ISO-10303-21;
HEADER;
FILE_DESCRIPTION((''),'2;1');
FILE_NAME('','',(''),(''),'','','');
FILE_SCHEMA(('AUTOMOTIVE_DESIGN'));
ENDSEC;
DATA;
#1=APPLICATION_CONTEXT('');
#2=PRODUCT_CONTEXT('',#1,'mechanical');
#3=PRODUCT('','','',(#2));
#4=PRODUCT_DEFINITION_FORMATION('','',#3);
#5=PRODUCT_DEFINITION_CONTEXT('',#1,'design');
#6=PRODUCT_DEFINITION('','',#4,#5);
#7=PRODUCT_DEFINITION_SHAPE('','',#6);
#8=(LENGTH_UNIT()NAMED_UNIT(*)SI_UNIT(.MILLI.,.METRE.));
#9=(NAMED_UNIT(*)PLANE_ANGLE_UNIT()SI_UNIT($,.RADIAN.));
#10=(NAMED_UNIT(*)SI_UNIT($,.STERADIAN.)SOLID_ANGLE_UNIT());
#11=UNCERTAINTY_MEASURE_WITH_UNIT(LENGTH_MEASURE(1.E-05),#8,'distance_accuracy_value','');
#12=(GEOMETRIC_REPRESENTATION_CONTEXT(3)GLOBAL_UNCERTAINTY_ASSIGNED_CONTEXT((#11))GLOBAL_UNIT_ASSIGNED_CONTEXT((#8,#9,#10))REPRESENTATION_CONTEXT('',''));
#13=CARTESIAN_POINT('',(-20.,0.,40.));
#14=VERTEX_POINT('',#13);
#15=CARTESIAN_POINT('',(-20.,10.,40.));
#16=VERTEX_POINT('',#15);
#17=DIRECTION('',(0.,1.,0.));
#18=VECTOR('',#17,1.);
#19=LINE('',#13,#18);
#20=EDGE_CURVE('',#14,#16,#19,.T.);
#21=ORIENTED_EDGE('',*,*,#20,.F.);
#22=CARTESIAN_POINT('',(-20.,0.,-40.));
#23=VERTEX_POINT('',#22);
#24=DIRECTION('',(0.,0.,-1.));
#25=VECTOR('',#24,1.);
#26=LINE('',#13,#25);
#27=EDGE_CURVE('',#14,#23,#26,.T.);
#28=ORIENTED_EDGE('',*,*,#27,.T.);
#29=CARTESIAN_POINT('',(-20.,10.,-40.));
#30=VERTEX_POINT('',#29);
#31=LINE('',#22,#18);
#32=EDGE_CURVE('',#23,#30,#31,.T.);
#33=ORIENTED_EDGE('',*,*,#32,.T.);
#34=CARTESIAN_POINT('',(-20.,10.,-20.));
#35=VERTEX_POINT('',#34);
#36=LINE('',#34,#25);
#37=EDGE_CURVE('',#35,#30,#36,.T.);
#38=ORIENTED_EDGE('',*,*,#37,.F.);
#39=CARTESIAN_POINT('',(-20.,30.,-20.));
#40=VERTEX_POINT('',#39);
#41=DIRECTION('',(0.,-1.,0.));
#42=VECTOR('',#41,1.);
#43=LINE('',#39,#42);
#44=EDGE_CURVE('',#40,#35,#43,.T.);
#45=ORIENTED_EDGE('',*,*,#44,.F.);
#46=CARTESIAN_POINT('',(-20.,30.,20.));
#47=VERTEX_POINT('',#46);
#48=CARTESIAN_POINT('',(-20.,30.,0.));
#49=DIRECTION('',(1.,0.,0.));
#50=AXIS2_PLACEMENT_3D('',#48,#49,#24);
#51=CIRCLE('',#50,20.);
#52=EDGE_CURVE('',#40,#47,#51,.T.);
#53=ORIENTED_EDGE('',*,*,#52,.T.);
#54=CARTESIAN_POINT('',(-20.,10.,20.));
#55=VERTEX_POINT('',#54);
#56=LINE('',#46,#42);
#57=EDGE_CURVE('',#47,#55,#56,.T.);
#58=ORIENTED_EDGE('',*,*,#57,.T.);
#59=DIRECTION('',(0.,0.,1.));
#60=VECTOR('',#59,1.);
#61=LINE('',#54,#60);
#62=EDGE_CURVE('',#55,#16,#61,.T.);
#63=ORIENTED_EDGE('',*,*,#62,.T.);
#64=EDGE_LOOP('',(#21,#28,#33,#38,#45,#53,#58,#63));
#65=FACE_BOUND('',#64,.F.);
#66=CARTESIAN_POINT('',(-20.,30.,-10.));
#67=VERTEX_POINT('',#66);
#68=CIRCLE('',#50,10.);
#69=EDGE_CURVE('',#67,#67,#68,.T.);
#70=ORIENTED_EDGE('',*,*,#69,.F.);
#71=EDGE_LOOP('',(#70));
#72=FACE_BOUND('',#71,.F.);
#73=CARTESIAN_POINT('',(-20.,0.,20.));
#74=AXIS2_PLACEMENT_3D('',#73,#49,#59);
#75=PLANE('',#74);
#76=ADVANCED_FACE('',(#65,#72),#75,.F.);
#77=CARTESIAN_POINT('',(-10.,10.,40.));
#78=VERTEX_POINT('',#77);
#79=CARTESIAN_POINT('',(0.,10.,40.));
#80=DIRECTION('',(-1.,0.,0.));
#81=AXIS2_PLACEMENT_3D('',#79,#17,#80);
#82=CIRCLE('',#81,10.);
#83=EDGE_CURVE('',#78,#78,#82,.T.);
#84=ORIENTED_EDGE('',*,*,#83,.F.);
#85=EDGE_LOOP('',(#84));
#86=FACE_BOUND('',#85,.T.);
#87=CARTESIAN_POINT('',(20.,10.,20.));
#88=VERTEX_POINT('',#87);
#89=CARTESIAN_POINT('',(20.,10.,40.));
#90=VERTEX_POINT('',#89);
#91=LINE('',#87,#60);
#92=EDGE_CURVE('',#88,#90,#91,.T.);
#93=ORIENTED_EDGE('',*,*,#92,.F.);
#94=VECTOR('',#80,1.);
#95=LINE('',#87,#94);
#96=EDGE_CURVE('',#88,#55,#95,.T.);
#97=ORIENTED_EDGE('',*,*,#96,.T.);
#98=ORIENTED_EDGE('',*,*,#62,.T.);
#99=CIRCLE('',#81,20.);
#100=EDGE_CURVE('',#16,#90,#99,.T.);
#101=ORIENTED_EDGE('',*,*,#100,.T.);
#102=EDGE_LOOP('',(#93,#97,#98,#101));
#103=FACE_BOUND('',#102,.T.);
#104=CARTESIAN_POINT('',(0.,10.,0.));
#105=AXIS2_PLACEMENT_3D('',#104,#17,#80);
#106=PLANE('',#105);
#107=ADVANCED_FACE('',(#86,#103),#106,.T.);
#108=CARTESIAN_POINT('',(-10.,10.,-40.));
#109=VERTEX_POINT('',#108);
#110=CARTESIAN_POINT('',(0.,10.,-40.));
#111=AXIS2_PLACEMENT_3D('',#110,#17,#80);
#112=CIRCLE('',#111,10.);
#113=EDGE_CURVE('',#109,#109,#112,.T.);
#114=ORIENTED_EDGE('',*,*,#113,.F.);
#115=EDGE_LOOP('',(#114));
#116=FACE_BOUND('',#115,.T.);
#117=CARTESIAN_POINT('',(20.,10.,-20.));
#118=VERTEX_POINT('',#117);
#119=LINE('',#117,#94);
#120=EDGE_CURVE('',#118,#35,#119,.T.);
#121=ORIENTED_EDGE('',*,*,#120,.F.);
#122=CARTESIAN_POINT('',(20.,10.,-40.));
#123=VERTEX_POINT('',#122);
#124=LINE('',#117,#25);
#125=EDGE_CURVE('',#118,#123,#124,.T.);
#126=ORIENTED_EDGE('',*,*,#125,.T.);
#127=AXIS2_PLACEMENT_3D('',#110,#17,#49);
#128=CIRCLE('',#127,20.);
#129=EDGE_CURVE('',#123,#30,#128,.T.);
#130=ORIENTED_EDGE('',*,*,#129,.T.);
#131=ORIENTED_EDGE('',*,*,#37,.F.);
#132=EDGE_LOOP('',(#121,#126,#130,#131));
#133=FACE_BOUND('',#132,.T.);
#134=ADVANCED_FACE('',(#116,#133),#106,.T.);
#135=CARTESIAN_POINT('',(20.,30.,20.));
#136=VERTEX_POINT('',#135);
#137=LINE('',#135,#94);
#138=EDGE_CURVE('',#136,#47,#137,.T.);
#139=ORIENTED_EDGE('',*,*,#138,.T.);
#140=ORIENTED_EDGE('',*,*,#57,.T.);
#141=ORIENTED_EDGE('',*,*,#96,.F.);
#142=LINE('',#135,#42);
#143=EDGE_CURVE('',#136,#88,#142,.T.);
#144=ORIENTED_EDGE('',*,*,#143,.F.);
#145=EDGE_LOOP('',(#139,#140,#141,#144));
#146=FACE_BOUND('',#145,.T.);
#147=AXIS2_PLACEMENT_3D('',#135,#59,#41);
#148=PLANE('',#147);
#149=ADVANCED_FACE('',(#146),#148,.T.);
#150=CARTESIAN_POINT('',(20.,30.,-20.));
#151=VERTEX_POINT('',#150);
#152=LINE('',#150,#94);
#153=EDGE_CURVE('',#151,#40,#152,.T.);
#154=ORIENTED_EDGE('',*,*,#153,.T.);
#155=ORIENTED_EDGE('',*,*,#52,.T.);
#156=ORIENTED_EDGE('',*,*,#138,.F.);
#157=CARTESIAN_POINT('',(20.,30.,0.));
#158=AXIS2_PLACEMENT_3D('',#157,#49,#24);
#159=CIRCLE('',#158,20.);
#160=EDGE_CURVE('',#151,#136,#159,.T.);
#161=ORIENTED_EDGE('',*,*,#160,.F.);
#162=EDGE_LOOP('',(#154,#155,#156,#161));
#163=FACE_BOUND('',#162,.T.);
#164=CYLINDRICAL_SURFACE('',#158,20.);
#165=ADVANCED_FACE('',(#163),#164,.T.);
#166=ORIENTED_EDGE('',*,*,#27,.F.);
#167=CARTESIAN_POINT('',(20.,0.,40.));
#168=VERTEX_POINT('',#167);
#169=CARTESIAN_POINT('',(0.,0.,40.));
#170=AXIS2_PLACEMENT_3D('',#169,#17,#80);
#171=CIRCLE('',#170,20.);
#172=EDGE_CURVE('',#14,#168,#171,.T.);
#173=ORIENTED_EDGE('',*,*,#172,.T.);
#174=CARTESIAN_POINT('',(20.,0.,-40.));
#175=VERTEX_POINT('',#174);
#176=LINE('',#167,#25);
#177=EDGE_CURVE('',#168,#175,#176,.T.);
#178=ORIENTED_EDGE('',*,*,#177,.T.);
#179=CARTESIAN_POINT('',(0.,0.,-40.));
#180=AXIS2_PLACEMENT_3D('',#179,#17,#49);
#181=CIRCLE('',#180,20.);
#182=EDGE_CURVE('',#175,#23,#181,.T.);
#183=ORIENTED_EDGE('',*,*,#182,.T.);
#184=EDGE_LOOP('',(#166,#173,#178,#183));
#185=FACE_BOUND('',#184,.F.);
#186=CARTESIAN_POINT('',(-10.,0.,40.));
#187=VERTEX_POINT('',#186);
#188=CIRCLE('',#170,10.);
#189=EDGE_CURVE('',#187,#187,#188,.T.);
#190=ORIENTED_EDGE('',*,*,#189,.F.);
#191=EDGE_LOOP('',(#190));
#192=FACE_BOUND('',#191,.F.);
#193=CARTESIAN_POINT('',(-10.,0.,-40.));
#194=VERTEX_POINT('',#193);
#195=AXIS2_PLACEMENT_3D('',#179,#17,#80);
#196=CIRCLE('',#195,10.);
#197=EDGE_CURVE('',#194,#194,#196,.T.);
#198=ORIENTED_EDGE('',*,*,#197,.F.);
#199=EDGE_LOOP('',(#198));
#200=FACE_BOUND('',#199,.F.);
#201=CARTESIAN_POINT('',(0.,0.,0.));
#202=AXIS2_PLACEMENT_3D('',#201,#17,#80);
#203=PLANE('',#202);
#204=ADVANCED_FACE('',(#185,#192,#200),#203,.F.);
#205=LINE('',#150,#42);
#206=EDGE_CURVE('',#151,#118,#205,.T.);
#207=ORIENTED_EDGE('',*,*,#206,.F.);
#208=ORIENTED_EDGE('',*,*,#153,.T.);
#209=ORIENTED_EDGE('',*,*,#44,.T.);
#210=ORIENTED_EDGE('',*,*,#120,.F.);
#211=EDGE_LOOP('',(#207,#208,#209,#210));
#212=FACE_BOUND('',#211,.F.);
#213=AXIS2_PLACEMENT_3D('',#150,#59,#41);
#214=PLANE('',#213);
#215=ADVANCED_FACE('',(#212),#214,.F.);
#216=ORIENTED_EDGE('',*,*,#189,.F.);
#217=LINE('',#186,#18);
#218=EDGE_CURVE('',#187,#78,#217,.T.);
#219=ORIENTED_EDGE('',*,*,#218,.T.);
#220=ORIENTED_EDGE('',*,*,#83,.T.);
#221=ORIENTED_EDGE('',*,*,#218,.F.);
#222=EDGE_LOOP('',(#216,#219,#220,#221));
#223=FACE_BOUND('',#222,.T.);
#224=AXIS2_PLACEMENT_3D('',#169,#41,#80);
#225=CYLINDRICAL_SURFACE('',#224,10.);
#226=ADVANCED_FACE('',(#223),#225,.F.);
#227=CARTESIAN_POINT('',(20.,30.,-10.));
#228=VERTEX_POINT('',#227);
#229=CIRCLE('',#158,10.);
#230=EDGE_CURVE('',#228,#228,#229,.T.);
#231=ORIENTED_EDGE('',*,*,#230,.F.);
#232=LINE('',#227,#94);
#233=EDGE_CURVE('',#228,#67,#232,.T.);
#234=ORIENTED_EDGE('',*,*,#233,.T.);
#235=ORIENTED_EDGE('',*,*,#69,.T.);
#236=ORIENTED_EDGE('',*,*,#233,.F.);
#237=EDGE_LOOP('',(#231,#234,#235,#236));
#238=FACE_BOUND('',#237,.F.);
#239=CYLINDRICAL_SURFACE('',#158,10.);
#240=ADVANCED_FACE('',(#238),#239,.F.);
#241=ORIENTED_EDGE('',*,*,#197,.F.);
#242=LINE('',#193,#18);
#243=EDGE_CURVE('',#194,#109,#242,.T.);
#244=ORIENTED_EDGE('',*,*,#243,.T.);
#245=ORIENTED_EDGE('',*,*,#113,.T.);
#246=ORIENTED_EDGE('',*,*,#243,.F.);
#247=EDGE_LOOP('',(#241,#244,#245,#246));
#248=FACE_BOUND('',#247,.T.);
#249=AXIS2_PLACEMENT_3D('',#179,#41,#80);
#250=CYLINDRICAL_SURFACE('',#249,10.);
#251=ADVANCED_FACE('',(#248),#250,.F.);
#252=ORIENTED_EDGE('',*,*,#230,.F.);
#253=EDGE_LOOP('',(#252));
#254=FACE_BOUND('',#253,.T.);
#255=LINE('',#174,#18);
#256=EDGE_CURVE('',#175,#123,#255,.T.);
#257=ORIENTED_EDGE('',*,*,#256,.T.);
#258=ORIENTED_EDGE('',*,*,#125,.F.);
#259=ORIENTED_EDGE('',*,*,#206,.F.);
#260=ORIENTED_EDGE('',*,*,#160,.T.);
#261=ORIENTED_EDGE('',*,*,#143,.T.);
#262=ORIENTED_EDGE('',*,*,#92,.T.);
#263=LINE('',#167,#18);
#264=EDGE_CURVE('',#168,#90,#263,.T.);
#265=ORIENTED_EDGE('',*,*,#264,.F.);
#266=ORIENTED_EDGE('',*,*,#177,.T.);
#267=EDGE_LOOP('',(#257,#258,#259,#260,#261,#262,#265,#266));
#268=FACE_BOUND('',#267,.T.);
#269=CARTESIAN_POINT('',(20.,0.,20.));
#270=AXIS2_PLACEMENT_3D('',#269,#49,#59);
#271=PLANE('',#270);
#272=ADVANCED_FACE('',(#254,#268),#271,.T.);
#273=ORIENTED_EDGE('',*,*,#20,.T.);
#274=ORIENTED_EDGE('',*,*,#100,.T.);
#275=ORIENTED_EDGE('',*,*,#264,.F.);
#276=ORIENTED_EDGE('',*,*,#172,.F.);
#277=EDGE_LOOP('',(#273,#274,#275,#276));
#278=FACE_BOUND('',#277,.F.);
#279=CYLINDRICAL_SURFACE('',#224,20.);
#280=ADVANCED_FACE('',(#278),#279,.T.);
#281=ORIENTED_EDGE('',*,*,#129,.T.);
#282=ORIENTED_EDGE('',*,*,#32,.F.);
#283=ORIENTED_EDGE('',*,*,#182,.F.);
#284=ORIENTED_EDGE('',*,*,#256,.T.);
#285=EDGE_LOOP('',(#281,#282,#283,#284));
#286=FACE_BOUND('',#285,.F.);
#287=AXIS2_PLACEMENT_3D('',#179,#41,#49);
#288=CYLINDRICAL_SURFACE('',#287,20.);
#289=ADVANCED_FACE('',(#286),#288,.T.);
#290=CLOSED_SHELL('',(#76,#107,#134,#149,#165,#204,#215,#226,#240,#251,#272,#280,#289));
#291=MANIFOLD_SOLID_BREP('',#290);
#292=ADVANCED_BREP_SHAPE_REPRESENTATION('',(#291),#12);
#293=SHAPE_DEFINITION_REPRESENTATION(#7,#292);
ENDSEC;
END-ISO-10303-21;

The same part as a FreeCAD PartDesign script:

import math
import FreeCAD as App
import Part
import Sketcher

V = App.Vector

doc = App.newDocument("Part")
body = doc.addObject("PartDesign::Body", "Body")

# Sketch on XZ plane
sketch1 = body.newObject("Sketcher::SketchObject", "Sketch")
sketch1.AttachmentSupport = (doc.getObject("XZ_Plane"), [""])
sketch1.MapMode = "FlatFace"
sketch1.addGeometry([
    Part.LineSegment(V(20, 40, 0), V(20, -40, 0)),  # 0
    Part.ArcOfCircle(Part.Circle(V(0, -40, 0), V(0, 0, 1), 20), math.radians(180), math.radians(360)),  # 1
    Part.LineSegment(V(-20, -40, 0), V(-20, 40, 0)),  # 2
    Part.ArcOfCircle(Part.Circle(V(0, 40, 0), V(0, 0, 1), 20), math.radians(0), math.radians(180)),  # 3
    Part.Circle(V(0, -40, 0), V(0, 0, 1), 10),  # 4
    Part.Circle(V(0, 40, 0), V(0, 0, 1), 10),  # 5
], False)
sketch1.addConstraint([
    Sketcher.Constraint("Tangent", 0, 2, 1, 2),
    Sketcher.Constraint("Tangent", 1, 1, 2, 1),
    Sketcher.Constraint("Tangent", 2, 2, 3, 2),
    Sketcher.Constraint("Tangent", 3, 1, 0, 1),
    Sketcher.Constraint("Vertical", 0),
    Sketcher.Constraint("Vertical", 2),
    Sketcher.Constraint("Coincident", 4, 3, 1, 3),
    Sketcher.Constraint("Coincident", 5, 3, 3, 3),
    Sketcher.Constraint("Equal", 4, 5),
    Sketcher.Constraint("Symmetric", 1, 3, 3, 3, -1, 1),
    Sketcher.Constraint("Diameter", 4, 20.0),
    Sketcher.Constraint("Radius", 1, 20.0),
    Sketcher.Constraint("DistanceY", 1, 3, -1, 1, 40.0),
])
pad1 = body.newObject("PartDesign::Pad", "Pad")
pad1.Profile = sketch1
pad1.Length = 10
pad1.Reversed = True

# Sketch on YZ plane
sketch2 = body.newObject("Sketcher::SketchObject", "Sketch001")
sketch2.AttachmentSupport = (doc.getObject("YZ_Plane"), [""])
sketch2.MapMode = "FlatFace"
sketch2.AttachmentOffset = App.Placement(V(0, 0, 20), App.Rotation())
sketch2.addGeometry([
    Part.LineSegment(V(10, -20, 0), V(30, -20, 0)),  # 0
    Part.ArcOfCircle(Part.Circle(V(30, 0, 0), V(0, 0, 1), 20), math.radians(-90), math.radians(90)),  # 1
    Part.LineSegment(V(30, 20, 0), V(10, 20, 0)),  # 2
    Part.LineSegment(V(10, 20, 0), V(10, -20, 0)),  # 3
    Part.Circle(V(30, 0, 0), V(0, 0, 1), 10),  # 4
], False)
sketch2.addConstraint([
    Sketcher.Constraint("Tangent", 0, 2, 1, 1),
    Sketcher.Constraint("Tangent", 1, 2, 2, 1),
    Sketcher.Constraint("Coincident", 2, 2, 3, 1),
    Sketcher.Constraint("Coincident", 3, 2, 0, 1),
    Sketcher.Constraint("Horizontal", 0),
    Sketcher.Constraint("Horizontal", 2),
    Sketcher.Constraint("Vertical", 3),
    Sketcher.Constraint("Coincident", 4, 3, 1, 3),
    Sketcher.Constraint("PointOnObject", 1, 3, -1),
    Sketcher.Constraint("Diameter", 4, 20.0),
    Sketcher.Constraint("Radius", 1, 20.0),
    Sketcher.Constraint("DistanceX", 0, 1, 0, 2, 20.0),
    Sketcher.Constraint("DistanceX", -1, 1, 1, 3, 30.0),
])
pad2 = body.newObject("PartDesign::Pad", "Pad001")
pad2.Profile = sketch2
pad2.Length = 40
pad2.Reversed = True

doc.recompute()
